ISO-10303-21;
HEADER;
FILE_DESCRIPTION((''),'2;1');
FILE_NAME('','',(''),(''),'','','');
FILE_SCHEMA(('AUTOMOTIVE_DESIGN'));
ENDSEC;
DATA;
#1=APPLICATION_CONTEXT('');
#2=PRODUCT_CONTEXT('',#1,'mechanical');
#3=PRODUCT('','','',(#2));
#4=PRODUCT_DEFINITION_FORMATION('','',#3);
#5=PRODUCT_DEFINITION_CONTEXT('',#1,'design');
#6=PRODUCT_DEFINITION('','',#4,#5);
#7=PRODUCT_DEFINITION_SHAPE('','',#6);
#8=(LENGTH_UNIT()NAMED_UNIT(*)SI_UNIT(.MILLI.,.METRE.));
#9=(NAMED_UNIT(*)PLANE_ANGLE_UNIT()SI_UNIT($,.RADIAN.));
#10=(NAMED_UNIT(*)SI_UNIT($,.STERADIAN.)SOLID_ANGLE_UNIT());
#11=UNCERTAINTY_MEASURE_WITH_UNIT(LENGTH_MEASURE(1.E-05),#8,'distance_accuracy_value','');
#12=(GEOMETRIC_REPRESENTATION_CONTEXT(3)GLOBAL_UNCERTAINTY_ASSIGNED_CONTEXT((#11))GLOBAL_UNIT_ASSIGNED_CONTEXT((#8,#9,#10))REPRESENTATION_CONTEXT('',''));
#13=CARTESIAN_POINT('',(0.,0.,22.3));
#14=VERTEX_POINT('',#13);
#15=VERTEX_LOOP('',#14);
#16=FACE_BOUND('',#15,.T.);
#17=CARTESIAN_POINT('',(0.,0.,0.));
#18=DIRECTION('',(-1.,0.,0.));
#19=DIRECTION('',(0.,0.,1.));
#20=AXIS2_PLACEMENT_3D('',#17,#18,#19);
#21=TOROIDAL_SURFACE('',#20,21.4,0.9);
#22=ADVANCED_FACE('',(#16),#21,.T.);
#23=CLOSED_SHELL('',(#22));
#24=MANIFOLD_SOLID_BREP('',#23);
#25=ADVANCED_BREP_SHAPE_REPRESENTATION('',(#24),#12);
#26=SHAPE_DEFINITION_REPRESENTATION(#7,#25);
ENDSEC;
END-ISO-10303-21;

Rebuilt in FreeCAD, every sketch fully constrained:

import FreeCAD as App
import Part
import Sketcher

V = App.Vector

doc = App.newDocument("Part")
body = doc.addObject("PartDesign::Body", "Body")

sketch1 = doc.addObject("Sketcher::SketchObject", "Sketch")
body.addObject(sketch1)
sketch1.AttachmentSupport = (doc.XY_Plane, [""])
sketch1.MapMode = "FlatFace"
sketch1.addGeometry(Part.Circle(V(0, 21.4, 0), V(0, 0, 1), 0.9), False)
sketch1.addConstraint([
    Sketcher.Constraint("PointOnObject", 0, 3, -2),
    Sketcher.Constraint("Diameter", 0, 1.8),
    Sketcher.Constraint("DistanceY", -1, 1, 0, 3, 21.4),
])
revolution = doc.addObject("PartDesign::Revolution", "Revolution")
body.addObject(revolution)
revolution.Profile = sketch1
revolution.ReferenceAxis = (sketch1, ["H_Axis"])
revolution.Angle = 360

doc.recompute()
